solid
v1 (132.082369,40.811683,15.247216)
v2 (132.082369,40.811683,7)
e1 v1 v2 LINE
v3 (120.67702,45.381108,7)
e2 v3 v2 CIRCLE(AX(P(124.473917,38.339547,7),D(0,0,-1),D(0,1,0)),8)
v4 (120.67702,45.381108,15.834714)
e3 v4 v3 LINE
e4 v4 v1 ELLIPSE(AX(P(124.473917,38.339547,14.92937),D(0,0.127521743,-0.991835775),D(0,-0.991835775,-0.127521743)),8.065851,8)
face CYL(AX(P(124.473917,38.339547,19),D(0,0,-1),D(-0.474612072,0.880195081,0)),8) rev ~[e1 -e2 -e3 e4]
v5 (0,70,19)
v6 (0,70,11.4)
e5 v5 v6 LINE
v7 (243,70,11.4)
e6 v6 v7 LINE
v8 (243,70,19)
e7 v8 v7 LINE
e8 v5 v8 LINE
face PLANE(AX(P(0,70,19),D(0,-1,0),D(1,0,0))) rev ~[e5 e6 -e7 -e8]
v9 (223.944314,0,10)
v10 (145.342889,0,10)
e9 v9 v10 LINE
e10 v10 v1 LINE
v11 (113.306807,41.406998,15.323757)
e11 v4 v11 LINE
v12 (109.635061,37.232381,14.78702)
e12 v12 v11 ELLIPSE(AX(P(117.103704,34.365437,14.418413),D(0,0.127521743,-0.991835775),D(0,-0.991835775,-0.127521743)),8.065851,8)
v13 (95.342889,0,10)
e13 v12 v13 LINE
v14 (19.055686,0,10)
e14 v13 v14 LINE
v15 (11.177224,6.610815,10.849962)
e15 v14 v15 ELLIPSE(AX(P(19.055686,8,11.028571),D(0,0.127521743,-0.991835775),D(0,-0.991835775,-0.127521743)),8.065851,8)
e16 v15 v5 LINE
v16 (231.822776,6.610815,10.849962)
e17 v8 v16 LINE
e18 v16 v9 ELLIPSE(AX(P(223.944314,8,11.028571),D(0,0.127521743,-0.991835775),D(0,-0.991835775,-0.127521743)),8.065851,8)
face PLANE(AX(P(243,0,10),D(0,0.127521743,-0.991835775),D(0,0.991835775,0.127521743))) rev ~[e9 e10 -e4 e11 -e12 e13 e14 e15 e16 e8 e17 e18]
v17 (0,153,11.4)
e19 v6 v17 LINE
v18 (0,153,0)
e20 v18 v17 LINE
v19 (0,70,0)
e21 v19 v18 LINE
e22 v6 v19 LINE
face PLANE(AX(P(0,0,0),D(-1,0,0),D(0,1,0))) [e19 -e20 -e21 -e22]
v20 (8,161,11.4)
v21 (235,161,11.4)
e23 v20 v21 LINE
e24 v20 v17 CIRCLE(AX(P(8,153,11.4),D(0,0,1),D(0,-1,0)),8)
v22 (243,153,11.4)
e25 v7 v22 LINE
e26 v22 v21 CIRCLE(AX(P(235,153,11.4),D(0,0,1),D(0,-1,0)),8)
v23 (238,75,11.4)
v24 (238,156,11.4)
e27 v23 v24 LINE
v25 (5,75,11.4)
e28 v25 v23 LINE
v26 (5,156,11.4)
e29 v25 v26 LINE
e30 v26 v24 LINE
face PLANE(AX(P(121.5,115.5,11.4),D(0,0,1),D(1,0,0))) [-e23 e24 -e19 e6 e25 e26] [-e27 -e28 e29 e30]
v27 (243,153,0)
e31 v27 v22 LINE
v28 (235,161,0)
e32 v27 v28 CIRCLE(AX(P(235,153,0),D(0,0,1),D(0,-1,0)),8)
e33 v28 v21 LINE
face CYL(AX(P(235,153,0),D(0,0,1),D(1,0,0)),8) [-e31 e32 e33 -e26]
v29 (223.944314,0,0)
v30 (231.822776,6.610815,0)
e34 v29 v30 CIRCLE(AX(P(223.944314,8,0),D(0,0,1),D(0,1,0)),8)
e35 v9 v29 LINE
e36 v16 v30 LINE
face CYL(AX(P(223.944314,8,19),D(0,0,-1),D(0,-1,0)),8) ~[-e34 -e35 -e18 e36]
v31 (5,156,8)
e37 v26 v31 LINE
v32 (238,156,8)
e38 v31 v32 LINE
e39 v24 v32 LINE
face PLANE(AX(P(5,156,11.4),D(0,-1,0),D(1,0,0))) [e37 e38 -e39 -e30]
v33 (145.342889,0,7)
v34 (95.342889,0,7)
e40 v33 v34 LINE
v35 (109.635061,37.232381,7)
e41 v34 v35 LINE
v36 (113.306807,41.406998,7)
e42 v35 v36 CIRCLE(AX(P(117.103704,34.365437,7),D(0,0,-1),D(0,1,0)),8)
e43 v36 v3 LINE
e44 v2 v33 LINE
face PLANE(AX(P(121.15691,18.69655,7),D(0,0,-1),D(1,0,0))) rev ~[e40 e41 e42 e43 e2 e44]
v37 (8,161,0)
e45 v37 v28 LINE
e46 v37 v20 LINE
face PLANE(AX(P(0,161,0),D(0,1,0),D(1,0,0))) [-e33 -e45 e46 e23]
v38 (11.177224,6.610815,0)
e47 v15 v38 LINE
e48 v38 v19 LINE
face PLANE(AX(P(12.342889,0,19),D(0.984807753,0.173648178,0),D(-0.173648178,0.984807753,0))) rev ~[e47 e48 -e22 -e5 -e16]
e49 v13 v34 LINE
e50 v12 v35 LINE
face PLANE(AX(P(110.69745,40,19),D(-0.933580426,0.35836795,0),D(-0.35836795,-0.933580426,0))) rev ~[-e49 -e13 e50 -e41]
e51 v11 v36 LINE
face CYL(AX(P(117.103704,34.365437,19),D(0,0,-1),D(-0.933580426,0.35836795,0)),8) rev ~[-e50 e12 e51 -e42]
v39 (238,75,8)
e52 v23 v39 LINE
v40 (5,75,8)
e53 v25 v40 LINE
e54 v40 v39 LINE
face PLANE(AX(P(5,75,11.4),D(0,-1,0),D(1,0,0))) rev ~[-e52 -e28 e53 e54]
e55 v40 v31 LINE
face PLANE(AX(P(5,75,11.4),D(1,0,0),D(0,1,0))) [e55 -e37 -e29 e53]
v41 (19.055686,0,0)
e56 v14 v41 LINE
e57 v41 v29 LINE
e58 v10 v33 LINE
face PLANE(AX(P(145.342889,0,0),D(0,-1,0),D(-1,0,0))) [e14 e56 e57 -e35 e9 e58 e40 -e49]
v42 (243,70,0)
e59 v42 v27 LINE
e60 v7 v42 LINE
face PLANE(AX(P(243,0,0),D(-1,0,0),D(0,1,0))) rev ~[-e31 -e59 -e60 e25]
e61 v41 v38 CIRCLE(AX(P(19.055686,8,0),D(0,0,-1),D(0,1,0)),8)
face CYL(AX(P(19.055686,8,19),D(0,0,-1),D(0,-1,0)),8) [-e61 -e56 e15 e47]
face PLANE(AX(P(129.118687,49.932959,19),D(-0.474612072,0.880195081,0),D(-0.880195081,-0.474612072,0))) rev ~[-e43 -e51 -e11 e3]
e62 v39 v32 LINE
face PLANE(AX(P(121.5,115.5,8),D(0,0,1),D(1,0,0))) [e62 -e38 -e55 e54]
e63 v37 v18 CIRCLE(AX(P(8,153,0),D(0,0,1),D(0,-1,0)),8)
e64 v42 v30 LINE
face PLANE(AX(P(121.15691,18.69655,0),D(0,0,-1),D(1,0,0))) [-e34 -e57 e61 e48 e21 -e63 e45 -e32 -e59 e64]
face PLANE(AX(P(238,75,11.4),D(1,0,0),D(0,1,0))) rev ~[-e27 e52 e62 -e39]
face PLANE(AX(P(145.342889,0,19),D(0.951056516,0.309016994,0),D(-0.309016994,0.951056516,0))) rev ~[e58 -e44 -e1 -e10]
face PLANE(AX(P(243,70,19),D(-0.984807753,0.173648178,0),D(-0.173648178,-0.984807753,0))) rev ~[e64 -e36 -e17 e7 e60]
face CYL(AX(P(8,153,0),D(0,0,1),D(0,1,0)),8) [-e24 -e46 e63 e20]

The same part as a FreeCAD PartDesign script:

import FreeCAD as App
import Part
import Sketcher
from FreeCAD import Vector
Q = App.Units.Quantity


def edges_at(feature, points):
    """Names of the edges that pass closest to the given points."""
    edges = feature.Shape.Edges
    near = lambda p: min(range(len(edges)), key=lambda i: edges[i].distToShape(Part.Vertex(*p))[0])
    return sorted({f"Edge{near(p) + 1}" for p in points})


def add_polygon(sketch, points):
    """Adds a closed chain of lines whose ends are joined by coincident constraints."""
    first, n = sketch.GeometryCount, len(points)
    for a, b in zip(points, points[1:] + points[:1]):
        sketch.addGeometry(Part.LineSegment(App.Vector(*a, 0), App.Vector(*b, 0)), False)
    for i in range(n):
        sketch.addConstraint(Sketcher.Constraint("Coincident", first + i, 2, first + (i + 1) % n, 1))

doc = App.newDocument("Part")
body = doc.addObject("PartDesign::Body", "Body")

sketch1 = body.newObject("Sketcher::SketchObject", "Sketch")
sketch1.AttachmentSupport = (doc.getObject("XY_Plane"), [""])
sketch1.MapMode = "FlatFace"
add_polygon(sketch1, [(0, 161), (0, 0), (243, 0), (243, 161)])
sketch1.addConstraint(Sketcher.Constraint("Vertical", 0))
sketch1.addConstraint(Sketcher.Constraint("Horizontal", 1))
sketch1.addConstraint(Sketcher.Constraint("Vertical", 2))
sketch1.addConstraint(Sketcher.Constraint("Horizontal", 3))
sketch1.addConstraint(Sketcher.Constraint("Coincident", 0, 2, -1, 1))
sketch1.addConstraint(Sketcher.Constraint("DistanceX", 1, 1, 1, 2, 243.0))
sketch1.addConstraint(Sketcher.Constraint("DistanceY", 0, 2, 0, 1, 161.0))
pad1 = body.newObject("PartDesign::Pad", "Pad")
pad1.Profile = sketch1
pad1.Length = 19

sketch2 = body.newObject("Sketcher::SketchObject", "Sketch001")
sketch2.AttachmentSupport = (doc.getObject("XY_Plane"), [""])
sketch2.MapMode = "FlatFace"
sketch2.AttachmentOffset = App.Placement(Vector(0, 0, 19), App.Rotation())
add_polygon(sketch2, [(0, 161), (0, 70), (243, 70), (243, 161)])
sketch2.addConstraint(Sketcher.Constraint("Vertical", 0))
sketch2.addConstraint(Sketcher.Constraint("Horizontal", 1))
sketch2.addConstraint(Sketcher.Constraint("Vertical", 2))
sketch2.addConstraint(Sketcher.Constraint("Horizontal", 3))
sketch2.addConstraint(Sketcher.Constraint("PointOnObject", 0, 2, -2))
sketch2.addConstraint(Sketcher.Constraint("DistanceX", 1, 1, 1, 2, 243.0))
sketch2.addConstraint(Sketcher.Constraint("DistanceY", 0, 2, 0, 1, 91.0))
sketch2.addConstraint(Sketcher.Constraint("DistanceY", -1, 1, 0, 2, 70.0))
pocket1 = body.newObject("PartDesign::Pocket", "Pocket")
pocket1.Profile = sketch2
pocket1.Length = 7.6

sketch3 = body.newObject("Sketcher::SketchObject", "Sketch002")
sketch3.AttachmentSupport = (doc.getObject("XY_Plane"), [""])
sketch3.MapMode = "FlatFace"
sketch3.AttachmentOffset = App.Placement(Vector(0, 0, 11.4), App.Rotation())
add_polygon(sketch3, [(5, 156), (5, 75), (238, 75), (238, 156)])
sketch3.addConstraint(Sketcher.Constraint("Vertical", 0))
sketch3.addConstraint(Sketcher.Constraint("Horizontal", 1))
sketch3.addConstraint(Sketcher.Constraint("Vertical", 2))
sketch3.addConstraint(Sketcher.Constraint("Horizontal", 3))
sketch3.addConstraint(Sketcher.Constraint("DistanceX", 1, 1, 1, 2, 233.0))
sketch3.addConstraint(Sketcher.Constraint("DistanceY", 0, 2, 0, 1, 81.0))
sketch3.addConstraint(Sketcher.Constraint("DistanceX", -1, 1, 0, 2, 5.0))
sketch3.addConstraint(Sketcher.Constraint("DistanceY", -1, 1, 0, 2, 75.0))
pocket2 = body.newObject("PartDesign::Pocket", "Pocket001")
pocket2.Profile = sketch3
pocket2.Length = 3.4

sketch4 = body.newObject("Sketcher::SketchObject", "Sketch003")
sketch4.AttachmentSupport = (doc.getObject("XY_Plane"), [""])
sketch4.MapMode = "FlatFace"
sketch4.AttachmentOffset = App.Placement(Vector(0, 0, 19), App.Rotation())
add_polygon(sketch4, [(12.342889, 0), (0, 70), (0, 0)])
add_polygon(sketch4, [(110.69745, 40), (95.342889, 0), (145.342889, 0), (129.118687, 49.932959)])
add_polygon(sketch4, [(243, 70), (230.657111, 0), (243, 0)])
sketch4.addConstraint(Sketcher.Constraint("Vertical", 1))
sketch4.addConstraint(Sketcher.Constraint("Horizontal", 2))
sketch4.addConstraint(Sketcher.Constraint("Horizontal", 4))
sketch4.addConstraint(Sketcher.Constraint("Horizontal", 8))
sketch4.addConstraint(Sketcher.Constraint("Vertical", 9))
sketch4.addConstraint(Sketcher.Constraint("Coincident", 1, 2, -1, 1))
sketch4.addConstraint(Sketcher.Constraint("PointOnObject", 3, 2, -1))
sketch4.addConstraint(Sketcher.Constraint("PointOnObject", 7, 2, -1))
sketch4.addConstraint(Sketcher.Constraint("Horizontal", 0, 2, 9, 2))
sketch4.addConstraint(Sketcher.Constraint("Equal", 2, 8))
sketch4.addConstraint(Sketcher.Constraint("DistanceX", 4, 1, 4, 2, 50.0))
sketch4.addConstraint(Sketcher.Constraint("DistanceY", 1, 2, 1, 1, 70.0))
sketch4.addConstraint(Sketcher.Constraint("Angle", 0, Q("100 deg")))
sketch4.addConstraint(Sketcher.Constraint("Angle", 3, Q("-111 deg")))
sketch4.addConstraint(Sketcher.Constraint("Angle", 5, Q("108 deg")))
sketch4.addConstraint(Sketcher.Constraint("DistanceY", -1, 1, 6, 2, 40.0))
sketch4.addConstraint(Sketcher.Constraint("DistanceX", -1, 1, 8, 2, 243.0))
sketch4.addConstraint(Sketcher.Constraint("DistanceX", 2, 2, 3, 2, 83.0))
sketch4.addConstraint(Sketcher.Constraint("DistanceX", 5, 2, 4, 2, 16.224202))
pocket3 = body.newObject("PartDesign::Pocket", "Pocket002")
pocket3.Profile = sketch4
pocket3.Type = "ThroughAll"

sketch5 = body.newObject("Sketcher::SketchObject", "Sketch004")
sketch5.AttachmentSupport = (doc.getObject("XY_Plane"), [""])
sketch5.MapMode = "FlatFace"
add_polygon(sketch5, [(145.342889, 0), (95.342889, 0), (110.69745, 40), (129.118687, 49.932959)])
sketch5.addConstraint(Sketcher.Constraint("Horizontal", 0))
sketch5.addConstraint(Sketcher.Constraint("PointOnObject", 0, 2, -1))
sketch5.addConstraint(Sketcher.Constraint("DistanceX", 0, 2, 0, 1, 50.0))
sketch5.addConstraint(Sketcher.Constraint("Angle", 1, Q("69 deg")))
sketch5.addConstraint(Sketcher.Constraint("Angle", 3, Q("-72 deg")))
sketch5.addConstraint(Sketcher.Constraint("DistanceY", -1, 1, 1, 2, 40.0))
sketch5.addConstraint(Sketcher.Constraint("DistanceX", 0, 2, 2, 2, 33.775798))
sketch5.addConstraint(Sketcher.Constraint("DistanceX", -1, 1, 0, 2, 95.342889))
pad2 = body.newObject("PartDesign::Pad", "Pad001")
pad2.Profile = sketch5
pad2.Length = 7
doc.recompute()

fillet = body.newObject("PartDesign::Fillet", "Fillet")
fillet.Base = (pad2, edges_at(pad2, [
    (0, 161, 5.7),
    (243, 161, 5.7),
    (230.657, 0, 9.5),
    (12.343, 0, 9.5),
    (110.697, 40, 13),
    (129.119, 49.933, 13),
]))
fillet.Radius = 8

sketch6 = body.newObject("Sketcher::SketchObject", "Sketch005")
sketch6.AttachmentSupport = (doc.getObject("YZ_Plane"), [""])
sketch6.MapMode = "FlatFace"
sketch6.AttachmentOffset = App.Placement(Vector(0, 0, 243), App.Rotation())
add_polygon(sketch6, [(0, 19), (0, 10), (70, 19)])
sketch6.addConstraint(Sketcher.Constraint("Vertical", 0))
sketch6.addConstraint(Sketcher.Constraint("Horizontal", 2))
sketch6.addConstraint(Sketcher.Constraint("PointOnObject", 0, 2, -2))
sketch6.addConstraint(Sketcher.Constraint("DistanceX", 2, 2, 2, 1, 70.0))
sketch6.addConstraint(Sketcher.Constraint("DistanceY", 0, 2, 0, 1, 9.0))
sketch6.addConstraint(Sketcher.Constraint("DistanceY", -1, 1, 0, 2, 10.0))
pocket4 = body.newObject("PartDesign::Pocket", "Pocket003")
pocket4.Profile = sketch6
pocket4.Type = "ThroughAll"

doc.recompute()
